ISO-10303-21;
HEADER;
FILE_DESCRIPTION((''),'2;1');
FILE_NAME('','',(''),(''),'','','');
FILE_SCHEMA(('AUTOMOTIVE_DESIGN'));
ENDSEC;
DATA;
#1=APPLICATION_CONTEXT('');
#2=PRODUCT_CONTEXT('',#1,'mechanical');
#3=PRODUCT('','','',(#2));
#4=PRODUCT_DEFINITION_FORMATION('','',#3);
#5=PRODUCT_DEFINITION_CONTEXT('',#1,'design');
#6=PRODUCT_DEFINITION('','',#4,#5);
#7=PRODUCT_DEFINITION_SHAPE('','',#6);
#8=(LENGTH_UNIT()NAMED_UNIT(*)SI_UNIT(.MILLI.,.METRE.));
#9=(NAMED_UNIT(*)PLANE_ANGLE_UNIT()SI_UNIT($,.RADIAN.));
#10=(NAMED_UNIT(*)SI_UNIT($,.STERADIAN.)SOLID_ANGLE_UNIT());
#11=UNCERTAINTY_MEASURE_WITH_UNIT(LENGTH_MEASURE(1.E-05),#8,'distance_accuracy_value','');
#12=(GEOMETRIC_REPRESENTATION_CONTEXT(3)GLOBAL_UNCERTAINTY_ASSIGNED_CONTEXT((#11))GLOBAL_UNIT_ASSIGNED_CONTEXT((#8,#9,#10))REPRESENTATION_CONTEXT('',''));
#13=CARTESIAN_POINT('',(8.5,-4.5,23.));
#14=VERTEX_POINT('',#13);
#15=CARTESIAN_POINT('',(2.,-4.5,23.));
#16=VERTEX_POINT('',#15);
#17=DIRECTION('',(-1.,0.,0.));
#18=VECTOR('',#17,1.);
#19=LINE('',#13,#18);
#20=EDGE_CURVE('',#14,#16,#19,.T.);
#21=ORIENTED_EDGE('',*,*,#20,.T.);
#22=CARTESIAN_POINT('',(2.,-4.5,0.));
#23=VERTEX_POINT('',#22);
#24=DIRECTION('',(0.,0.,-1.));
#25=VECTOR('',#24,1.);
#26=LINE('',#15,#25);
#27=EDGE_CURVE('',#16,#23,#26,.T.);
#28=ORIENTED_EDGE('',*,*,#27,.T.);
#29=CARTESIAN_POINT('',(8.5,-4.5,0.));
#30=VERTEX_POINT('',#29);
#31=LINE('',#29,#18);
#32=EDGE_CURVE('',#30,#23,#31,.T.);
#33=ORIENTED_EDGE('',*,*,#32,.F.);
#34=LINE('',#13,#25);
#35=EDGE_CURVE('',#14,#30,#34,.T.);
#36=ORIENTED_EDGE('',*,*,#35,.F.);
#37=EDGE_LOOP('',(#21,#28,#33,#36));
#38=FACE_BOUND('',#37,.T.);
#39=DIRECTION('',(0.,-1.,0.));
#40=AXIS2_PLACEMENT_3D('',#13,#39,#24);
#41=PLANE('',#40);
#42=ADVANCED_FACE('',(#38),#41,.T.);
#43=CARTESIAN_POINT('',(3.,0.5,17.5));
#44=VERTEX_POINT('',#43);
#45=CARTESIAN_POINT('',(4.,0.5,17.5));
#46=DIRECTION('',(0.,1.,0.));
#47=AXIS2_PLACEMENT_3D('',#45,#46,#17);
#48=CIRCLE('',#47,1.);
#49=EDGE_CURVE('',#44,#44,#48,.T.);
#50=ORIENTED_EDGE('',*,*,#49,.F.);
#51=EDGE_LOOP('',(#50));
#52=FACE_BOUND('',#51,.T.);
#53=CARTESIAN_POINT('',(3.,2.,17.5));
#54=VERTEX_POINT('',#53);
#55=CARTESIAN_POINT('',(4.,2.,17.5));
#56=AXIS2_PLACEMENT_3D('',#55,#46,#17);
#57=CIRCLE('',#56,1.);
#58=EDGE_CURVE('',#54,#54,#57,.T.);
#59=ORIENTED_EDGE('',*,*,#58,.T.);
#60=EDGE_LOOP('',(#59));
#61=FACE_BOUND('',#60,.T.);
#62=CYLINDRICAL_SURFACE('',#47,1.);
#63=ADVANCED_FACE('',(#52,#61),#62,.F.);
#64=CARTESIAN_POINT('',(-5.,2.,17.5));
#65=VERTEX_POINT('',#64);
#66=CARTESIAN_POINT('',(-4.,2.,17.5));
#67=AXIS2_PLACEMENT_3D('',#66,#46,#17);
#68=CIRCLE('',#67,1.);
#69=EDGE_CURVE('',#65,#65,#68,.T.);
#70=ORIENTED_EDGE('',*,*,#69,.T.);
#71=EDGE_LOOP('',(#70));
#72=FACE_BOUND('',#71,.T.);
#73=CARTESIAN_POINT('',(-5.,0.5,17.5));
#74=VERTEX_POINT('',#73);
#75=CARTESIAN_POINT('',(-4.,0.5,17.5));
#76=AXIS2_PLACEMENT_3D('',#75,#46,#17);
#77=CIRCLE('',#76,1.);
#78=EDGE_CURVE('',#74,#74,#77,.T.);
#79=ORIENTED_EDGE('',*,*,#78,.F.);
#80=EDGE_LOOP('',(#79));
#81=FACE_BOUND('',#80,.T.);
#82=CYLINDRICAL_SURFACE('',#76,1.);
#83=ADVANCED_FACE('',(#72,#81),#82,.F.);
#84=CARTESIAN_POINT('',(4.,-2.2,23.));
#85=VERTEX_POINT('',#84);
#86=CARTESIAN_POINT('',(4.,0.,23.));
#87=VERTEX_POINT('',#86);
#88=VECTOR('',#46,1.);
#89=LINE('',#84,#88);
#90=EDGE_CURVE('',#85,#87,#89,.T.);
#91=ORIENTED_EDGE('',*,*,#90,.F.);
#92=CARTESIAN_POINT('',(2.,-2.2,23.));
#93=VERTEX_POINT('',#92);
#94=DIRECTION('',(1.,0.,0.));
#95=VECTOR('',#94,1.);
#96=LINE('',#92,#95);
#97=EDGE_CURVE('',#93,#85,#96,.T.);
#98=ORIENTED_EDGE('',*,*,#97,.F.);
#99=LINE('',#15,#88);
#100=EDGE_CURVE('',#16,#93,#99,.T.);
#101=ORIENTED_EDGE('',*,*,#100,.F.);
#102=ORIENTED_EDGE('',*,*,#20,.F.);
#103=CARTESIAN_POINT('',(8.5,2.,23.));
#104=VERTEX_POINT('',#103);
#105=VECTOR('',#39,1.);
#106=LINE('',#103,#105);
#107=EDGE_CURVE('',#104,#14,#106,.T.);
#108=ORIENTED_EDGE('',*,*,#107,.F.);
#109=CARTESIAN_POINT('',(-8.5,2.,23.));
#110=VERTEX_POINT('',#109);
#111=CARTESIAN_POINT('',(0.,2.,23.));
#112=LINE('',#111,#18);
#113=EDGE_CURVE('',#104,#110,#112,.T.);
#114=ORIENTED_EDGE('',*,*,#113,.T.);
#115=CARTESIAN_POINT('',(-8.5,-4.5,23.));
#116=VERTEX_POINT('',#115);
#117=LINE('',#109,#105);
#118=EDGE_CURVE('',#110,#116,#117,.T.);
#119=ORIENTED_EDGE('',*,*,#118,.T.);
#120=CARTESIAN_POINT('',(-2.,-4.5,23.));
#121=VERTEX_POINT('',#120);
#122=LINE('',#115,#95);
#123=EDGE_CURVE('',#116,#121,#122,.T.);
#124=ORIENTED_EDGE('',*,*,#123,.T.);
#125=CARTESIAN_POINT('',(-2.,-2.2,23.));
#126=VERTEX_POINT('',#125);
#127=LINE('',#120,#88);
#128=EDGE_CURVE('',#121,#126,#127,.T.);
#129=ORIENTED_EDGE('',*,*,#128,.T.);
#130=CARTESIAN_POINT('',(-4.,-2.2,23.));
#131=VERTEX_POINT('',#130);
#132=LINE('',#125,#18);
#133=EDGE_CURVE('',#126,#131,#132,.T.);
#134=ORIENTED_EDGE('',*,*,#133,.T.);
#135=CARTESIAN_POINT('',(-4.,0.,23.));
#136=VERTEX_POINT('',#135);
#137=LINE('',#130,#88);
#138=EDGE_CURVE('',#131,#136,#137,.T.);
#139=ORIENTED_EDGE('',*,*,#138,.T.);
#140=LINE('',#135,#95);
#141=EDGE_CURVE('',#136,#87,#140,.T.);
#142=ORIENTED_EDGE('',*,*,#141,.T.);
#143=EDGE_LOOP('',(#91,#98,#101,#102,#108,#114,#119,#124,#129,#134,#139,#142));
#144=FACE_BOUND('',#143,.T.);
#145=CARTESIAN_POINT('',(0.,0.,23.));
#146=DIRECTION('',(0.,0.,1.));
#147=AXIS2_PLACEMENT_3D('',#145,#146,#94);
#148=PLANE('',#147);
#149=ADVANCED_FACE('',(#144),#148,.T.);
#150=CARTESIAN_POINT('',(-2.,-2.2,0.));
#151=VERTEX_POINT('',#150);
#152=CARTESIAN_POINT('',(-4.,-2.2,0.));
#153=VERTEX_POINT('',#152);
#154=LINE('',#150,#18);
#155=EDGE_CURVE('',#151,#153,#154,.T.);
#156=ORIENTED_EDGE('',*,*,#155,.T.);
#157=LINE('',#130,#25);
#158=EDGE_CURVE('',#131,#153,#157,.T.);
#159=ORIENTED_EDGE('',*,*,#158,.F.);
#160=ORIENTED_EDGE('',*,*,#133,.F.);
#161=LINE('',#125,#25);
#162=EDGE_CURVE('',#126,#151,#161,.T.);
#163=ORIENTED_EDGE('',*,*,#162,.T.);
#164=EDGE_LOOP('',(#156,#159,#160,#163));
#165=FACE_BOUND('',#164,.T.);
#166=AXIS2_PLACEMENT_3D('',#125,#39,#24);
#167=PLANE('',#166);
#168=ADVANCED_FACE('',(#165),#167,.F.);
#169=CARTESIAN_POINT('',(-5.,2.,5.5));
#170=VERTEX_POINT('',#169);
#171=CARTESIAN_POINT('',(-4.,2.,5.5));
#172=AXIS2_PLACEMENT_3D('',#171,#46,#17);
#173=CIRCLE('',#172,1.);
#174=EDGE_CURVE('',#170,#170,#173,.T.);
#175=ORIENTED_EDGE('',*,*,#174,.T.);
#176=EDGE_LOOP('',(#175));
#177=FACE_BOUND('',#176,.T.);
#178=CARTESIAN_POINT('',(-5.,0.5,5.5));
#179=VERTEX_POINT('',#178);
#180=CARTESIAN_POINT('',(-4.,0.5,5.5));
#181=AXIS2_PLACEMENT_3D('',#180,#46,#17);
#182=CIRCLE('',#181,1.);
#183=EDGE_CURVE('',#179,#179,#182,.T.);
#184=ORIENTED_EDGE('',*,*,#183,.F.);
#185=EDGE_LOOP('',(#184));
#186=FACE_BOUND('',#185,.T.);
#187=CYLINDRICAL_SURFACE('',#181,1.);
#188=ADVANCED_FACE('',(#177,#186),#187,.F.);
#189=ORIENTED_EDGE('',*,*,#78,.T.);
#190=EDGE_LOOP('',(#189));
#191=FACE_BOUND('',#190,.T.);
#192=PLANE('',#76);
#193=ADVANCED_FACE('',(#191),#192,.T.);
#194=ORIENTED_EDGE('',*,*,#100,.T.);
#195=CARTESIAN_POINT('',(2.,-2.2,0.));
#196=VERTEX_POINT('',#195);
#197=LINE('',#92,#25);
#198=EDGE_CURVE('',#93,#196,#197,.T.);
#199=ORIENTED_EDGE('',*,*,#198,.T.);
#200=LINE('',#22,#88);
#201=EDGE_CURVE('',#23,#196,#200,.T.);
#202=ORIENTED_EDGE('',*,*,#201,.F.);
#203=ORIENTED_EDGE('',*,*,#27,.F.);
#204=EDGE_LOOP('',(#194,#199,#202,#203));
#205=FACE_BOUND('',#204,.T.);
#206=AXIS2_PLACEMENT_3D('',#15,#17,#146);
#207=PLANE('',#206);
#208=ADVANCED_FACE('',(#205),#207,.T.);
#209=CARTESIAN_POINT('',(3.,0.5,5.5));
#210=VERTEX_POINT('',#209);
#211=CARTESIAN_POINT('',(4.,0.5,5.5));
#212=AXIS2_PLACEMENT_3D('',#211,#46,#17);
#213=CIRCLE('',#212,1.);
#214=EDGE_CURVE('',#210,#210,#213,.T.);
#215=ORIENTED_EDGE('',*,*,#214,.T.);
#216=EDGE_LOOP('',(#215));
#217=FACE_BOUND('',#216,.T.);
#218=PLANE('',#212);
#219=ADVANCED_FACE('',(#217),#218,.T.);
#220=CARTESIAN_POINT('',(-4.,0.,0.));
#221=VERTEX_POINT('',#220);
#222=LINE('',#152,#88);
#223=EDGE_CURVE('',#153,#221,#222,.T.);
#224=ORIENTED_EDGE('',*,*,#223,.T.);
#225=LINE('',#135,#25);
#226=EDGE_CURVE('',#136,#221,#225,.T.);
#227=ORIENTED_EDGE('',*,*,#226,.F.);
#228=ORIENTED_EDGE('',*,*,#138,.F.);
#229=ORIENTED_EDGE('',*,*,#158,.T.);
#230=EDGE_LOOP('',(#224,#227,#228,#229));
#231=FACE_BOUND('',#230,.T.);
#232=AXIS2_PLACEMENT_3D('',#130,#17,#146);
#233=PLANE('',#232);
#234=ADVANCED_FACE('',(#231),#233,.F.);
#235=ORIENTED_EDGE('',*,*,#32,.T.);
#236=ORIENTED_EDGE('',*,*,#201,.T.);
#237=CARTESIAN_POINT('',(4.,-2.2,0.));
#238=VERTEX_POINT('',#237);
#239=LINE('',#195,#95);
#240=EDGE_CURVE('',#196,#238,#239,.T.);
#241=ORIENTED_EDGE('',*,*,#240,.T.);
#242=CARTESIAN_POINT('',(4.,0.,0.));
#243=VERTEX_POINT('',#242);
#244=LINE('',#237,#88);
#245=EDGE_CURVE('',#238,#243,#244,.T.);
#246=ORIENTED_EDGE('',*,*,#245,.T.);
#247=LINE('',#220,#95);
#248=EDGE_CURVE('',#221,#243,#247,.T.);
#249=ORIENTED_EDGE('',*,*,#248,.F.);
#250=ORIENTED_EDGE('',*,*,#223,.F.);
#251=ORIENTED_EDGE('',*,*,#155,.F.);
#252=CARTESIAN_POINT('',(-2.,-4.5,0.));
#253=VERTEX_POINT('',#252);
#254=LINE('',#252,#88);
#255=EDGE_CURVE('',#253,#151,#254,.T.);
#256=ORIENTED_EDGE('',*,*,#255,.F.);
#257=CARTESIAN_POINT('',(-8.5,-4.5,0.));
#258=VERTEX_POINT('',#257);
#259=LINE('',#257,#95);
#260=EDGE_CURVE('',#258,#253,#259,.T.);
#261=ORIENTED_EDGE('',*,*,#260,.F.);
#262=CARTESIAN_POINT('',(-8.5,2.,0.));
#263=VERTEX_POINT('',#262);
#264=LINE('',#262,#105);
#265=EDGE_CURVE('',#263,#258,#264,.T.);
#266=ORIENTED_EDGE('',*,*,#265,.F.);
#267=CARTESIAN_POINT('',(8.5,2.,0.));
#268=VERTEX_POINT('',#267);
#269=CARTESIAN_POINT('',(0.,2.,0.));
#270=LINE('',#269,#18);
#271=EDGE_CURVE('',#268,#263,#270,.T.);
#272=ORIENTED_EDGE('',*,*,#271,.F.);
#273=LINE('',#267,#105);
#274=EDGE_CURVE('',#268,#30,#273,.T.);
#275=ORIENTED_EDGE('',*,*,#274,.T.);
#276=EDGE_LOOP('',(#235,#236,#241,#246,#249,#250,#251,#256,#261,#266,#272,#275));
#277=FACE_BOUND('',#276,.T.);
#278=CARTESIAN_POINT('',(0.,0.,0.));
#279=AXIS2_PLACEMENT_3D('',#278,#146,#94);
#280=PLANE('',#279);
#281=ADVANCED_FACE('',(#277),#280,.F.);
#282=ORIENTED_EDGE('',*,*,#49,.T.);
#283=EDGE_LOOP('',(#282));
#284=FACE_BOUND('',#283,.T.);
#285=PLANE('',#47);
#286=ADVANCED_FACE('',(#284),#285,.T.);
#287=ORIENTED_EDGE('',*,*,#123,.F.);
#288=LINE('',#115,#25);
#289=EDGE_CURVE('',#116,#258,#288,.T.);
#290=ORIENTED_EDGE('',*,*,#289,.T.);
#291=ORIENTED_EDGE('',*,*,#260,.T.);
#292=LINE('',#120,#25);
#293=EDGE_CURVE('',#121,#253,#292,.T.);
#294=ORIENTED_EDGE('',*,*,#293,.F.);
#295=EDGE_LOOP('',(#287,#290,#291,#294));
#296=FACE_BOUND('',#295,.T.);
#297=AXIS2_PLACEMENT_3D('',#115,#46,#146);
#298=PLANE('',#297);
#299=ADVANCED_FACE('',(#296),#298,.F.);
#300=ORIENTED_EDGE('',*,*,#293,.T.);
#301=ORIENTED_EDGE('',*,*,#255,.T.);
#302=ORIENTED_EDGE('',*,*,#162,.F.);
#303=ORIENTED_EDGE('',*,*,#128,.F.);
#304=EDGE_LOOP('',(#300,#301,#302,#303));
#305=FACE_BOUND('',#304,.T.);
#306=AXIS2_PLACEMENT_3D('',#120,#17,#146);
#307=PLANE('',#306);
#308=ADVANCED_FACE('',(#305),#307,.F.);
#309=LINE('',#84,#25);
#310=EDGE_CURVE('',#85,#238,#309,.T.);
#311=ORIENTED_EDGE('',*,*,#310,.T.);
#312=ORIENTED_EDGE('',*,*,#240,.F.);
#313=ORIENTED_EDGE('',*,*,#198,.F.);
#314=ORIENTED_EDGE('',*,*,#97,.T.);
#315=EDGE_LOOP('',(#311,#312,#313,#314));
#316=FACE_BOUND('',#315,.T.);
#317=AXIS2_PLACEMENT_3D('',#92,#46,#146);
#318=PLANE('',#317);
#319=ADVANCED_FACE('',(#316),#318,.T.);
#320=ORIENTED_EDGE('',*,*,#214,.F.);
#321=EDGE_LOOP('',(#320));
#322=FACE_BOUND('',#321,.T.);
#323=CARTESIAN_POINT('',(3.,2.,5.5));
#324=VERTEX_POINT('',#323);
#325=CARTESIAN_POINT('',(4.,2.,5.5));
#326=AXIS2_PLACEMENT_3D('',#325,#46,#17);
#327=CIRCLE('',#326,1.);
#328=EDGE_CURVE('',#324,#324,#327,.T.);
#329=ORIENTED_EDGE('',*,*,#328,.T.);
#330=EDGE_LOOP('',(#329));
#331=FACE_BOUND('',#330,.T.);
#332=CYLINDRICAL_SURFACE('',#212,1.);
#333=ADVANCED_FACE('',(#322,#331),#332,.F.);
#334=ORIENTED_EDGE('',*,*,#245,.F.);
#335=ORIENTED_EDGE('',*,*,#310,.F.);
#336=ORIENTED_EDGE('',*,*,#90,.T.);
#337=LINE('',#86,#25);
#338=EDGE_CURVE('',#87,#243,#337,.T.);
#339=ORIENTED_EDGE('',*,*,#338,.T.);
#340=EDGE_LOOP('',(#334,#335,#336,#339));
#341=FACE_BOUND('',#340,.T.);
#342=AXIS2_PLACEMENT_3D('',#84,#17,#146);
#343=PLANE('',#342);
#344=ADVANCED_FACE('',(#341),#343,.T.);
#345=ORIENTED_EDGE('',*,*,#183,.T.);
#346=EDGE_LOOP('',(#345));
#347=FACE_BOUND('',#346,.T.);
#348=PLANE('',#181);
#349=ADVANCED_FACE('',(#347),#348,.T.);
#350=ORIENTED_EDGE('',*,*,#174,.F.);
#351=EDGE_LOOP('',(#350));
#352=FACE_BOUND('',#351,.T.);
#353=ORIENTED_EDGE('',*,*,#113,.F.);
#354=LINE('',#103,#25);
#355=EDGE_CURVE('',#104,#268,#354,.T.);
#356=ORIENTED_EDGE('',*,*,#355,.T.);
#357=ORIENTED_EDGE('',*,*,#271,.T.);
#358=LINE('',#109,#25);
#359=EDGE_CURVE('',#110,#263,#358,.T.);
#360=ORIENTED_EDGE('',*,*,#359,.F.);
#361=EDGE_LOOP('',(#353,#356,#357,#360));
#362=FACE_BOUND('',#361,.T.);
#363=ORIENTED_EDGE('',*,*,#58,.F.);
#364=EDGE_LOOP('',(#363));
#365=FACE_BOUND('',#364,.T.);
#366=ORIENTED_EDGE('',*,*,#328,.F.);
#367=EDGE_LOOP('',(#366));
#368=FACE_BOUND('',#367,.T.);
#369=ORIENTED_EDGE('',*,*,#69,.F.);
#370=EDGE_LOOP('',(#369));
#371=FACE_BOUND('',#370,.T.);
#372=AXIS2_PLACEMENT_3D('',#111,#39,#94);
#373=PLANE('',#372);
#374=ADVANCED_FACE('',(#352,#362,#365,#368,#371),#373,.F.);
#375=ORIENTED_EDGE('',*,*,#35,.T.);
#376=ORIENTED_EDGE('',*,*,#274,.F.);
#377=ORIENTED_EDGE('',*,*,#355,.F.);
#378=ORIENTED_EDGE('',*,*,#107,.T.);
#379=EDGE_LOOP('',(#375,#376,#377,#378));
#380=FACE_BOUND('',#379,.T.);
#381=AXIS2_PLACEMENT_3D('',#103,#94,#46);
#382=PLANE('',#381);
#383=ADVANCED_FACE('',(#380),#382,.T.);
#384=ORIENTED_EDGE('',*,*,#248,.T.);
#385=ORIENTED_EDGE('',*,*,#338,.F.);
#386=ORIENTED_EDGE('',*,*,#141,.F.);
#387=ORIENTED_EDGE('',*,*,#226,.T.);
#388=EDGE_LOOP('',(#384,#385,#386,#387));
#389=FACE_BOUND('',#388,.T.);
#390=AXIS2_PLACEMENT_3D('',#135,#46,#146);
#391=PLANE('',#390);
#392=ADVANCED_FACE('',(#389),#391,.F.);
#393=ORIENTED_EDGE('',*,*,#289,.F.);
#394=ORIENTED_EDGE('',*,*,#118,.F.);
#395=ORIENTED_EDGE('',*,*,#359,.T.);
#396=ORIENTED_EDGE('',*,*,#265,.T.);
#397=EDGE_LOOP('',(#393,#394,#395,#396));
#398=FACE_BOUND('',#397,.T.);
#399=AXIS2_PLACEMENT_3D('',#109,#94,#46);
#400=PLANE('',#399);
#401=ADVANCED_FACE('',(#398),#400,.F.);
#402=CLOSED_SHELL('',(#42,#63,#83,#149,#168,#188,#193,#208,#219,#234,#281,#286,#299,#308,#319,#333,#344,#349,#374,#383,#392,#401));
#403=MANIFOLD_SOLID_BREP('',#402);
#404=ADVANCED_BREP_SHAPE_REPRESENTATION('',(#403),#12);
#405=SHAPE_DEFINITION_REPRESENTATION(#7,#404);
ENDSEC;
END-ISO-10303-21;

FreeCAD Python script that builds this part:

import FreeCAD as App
import Part
import Sketcher

V = App.Vector

doc = App.newDocument("Part")
body = doc.addObject("PartDesign::Body", "Body")

# Sketch on XY plane
sketch1 = body.newObject("Sketcher::SketchObject", "Sketch")
sketch1.AttachmentSupport = (doc.getObject("XY_Plane"), [""])
sketch1.MapMode = "FlatFace"
sketch1.addGeometry([
    Part.LineSegment(V(0, 0, 0), V(0, 2, 0)),  # 0
    Part.LineSegment(V(0, 2, 0), V(-8.5, 2, 0)),  # 1
    Part.LineSegment(V(-8.5, 2, 0), V(-8.5, -4.5, 0)),  # 2
    Part.LineSegment(V(-8.5, -4.5, 0), V(-2, -4.5, 0)),  # 3
    Part.LineSegment(V(-2, -4.5, 0), V(-2, -2.2, 0)),  # 4
    Part.LineSegment(V(-2, -2.2, 0), V(-4, -2.2, 0)),  # 5
    Part.LineSegment(V(-4, -2.2, 0), V(-4, 0, 0)),  # 6
    Part.LineSegment(V(-4, 0, 0), V(0, 0, 0)),  # 7
], False)
sketch1.addConstraint([
    Sketcher.Constraint("Coincident", 0, 2, 1, 1),
    Sketcher.Constraint("Coincident", 1, 2, 2, 1),
    Sketcher.Constraint("Coincident", 2, 2, 3, 1),
    Sketcher.Constraint("Coincident", 3, 2, 4, 1),
    Sketcher.Constraint("Coincident", 4, 2, 5, 1),
    Sketcher.Constraint("Coincident", 5, 2, 6, 1),
    Sketcher.Constraint("Coincident", 6, 2, 7, 1),
    Sketcher.Constraint("Coincident", 7, 2, 0, 1),
    Sketcher.Constraint("Vertical", 0),
    Sketcher.Constraint("Horizontal", 1),
    Sketcher.Constraint("Vertical", 2),
    Sketcher.Constraint("Horizontal", 3),
    Sketcher.Constraint("Vertical", 4),
    Sketcher.Constraint("Horizontal", 5),
    Sketcher.Constraint("Vertical", 6),
    Sketcher.Constraint("Horizontal", 7),
    Sketcher.Constraint("Coincident", 7, 2, -1, 1),
    Sketcher.Constraint("Equal", 5, 0),
    Sketcher.Constraint("Equal", 3, 2),
    Sketcher.Constraint("DistanceX", 5, 2, 5, 1, 2.0),
    Sketcher.Constraint("DistanceX", 7, 1, 7, 2, 4.0),
    Sketcher.Constraint("DistanceX", 1, 2, 1, 1, 8.5),
    Sketcher.Constraint("DistanceY", 4, 1, 4, 2, 2.3),
])
pad1 = body.newObject("PartDesign::Pad", "Pad")
pad1.Profile = sketch1
pad1.Length = 23
doc.recompute()

mirrored = body.newObject("PartDesign::Mirrored", "Mirrored")
mirrored.Originals = [pad1]
mirrored.MirrorPlane = (doc.getObject("YZ_Plane"), [""])
body.Tip = mirrored

# Sketch on XZ plane
sketch2 = body.newObject("Sketcher::SketchObject", "Sketch001")
sketch2.AttachmentSupport = (doc.getObject("XZ_Plane"), [""])
sketch2.MapMode = "FlatFace"
sketch2.AttachmentOffset = App.Placement(V(0, 0, -2), App.Rotation())
sketch2.addGeometry([
    Part.Circle(V(-4, 5.5, 0), V(0, 0, 1), 1),
    Part.Circle(V(4, 5.5, 0), V(0, 0, 1), 1),
    Part.Circle(V(4, 17.5, 0), V(0, 0, 1), 1),
    Part.Circle(V(-4, 17.5, 0), V(0, 0, 1), 1),
], False)
sketch2.addConstraint([
    Sketcher.Constraint("Equal", 0, 1),
    Sketcher.Constraint("Equal", 1, 2),
    Sketcher.Constraint("Equal", 2, 3),
    Sketcher.Constraint("Symmetric", 0, 3, 1, 3, -2),
    Sketcher.Constraint("Symmetric", 2, 3, 3, 3, -2),
    Sketcher.Constraint("Vertical", 1, 3, 2, 3),
    Sketcher.Constraint("Diameter", 0, 2.0),
    Sketcher.Constraint("DistanceX", 0, 3, -1, 1, 4.0),
    Sketcher.Constraint("DistanceY", 1, 3, 2, 3, 12.0),
    Sketcher.Constraint("DistanceY", -1, 1, 0, 3, 5.5),
])
pocket1 = body.newObject("PartDesign::Pocket", "Pocket")
pocket1.Profile = sketch2
pocket1.Length = 1.5
pocket1.Reversed = True

doc.recompute()
